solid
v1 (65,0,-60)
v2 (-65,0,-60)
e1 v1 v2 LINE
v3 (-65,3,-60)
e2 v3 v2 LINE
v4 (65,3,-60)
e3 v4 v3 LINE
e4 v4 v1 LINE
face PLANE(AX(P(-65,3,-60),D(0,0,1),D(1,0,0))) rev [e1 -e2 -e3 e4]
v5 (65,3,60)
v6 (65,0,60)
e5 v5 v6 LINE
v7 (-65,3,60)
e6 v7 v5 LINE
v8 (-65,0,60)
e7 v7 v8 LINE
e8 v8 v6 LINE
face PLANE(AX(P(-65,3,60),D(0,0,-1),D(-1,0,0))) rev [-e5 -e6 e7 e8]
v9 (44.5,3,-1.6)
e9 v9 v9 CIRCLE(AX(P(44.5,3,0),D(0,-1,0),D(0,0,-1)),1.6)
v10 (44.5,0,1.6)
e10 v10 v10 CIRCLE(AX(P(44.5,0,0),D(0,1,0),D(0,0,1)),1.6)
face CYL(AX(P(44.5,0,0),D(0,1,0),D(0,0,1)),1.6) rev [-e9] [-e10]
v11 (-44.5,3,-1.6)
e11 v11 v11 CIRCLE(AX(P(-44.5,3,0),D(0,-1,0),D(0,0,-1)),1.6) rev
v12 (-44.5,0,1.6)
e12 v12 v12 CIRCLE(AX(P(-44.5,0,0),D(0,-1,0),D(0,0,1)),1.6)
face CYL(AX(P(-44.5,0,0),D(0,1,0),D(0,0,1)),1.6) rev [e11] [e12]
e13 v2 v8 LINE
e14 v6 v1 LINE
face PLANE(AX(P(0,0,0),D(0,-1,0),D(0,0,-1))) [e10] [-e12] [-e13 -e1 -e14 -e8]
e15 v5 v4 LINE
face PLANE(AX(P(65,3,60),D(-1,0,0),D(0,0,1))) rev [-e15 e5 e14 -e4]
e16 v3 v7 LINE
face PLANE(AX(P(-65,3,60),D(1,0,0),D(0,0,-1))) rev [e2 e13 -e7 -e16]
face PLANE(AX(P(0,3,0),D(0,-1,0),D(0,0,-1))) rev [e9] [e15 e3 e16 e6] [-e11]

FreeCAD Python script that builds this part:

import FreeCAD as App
import Part
import Sketcher

V = App.Vector


def add_polygon(sketch, points):
    """Adds a closed chain of lines whose ends are joined by coincident constraints."""
    first, n = sketch.GeometryCount, len(points)
    for a, b in zip(points, points[1:] + points[:1]):
        sketch.addGeometry(Part.LineSegment(App.Vector(*a, 0), App.Vector(*b, 0)), False)
    for i in range(n):
        sketch.addConstraint(Sketcher.Constraint("Coincident", first + i, 2, first + (i + 1) % n, 1))

doc = App.newDocument("Part")
body = doc.addObject("PartDesign::Body", "Body")

# Sketch on XZ plane
sketch1 = body.newObject("Sketcher::SketchObject", "Sketch")
sketch1.AttachmentSupport = (doc.getObject("XZ_Plane"), [""])
sketch1.MapMode = "FlatFace"
add_polygon(sketch1, [(-65, -60), (-65, 60), (65, 60), (65, -60)])  # lines 0-3
sketch1.addConstraint([
    Sketcher.Constraint("Vertical", 0),
    Sketcher.Constraint("Horizontal", 1),
    Sketcher.Constraint("Vertical", 2),
    Sketcher.Constraint("Horizontal", 3),
    Sketcher.Constraint("Symmetric", 0, 2, 2, 2, -1, 1),
    Sketcher.Constraint("DistanceX", 1, 1, 1, 2, 130.0),
    Sketcher.Constraint("DistanceY", 0, 1, 0, 2, 120.0),
])
pad1 = body.newObject("PartDesign::Pad", "Pad")
pad1.Profile = sketch1
pad1.Length = 3
pad1.Reversed = True

# Sketch on XZ plane
sketch2 = body.newObject("Sketcher::SketchObject", "Sketch001")
sketch2.AttachmentSupport = (doc.getObject("XZ_Plane"), [""])
sketch2.MapMode = "FlatFace"
sketch2.AttachmentOffset = App.Placement(V(0, 0, 1), App.Rotation())
sketch2.addGeometry(Part.Circle(V(44.5, 0, 0), V(0, 0, 1), 1.6), False)
sketch2.addConstraint([
    Sketcher.Constraint("PointOnObject", 0, 3, -1),
    Sketcher.Constraint("Diameter", 0, 3.2),
    Sketcher.Constraint("DistanceX", -1, 1, 0, 3, 44.5),
])
pocket1 = body.newObject("PartDesign::Pocket", "Pocket")
pocket1.Profile = sketch2
pocket1.Length = 5
doc.recompute()

mirrored = body.newObject("PartDesign::Mirrored", "Mirrored")
mirrored.Originals = [pocket1]
mirrored.MirrorPlane = (doc.getObject("YZ_Plane"), [""])
body.Tip = mirrored

doc.recompute()
